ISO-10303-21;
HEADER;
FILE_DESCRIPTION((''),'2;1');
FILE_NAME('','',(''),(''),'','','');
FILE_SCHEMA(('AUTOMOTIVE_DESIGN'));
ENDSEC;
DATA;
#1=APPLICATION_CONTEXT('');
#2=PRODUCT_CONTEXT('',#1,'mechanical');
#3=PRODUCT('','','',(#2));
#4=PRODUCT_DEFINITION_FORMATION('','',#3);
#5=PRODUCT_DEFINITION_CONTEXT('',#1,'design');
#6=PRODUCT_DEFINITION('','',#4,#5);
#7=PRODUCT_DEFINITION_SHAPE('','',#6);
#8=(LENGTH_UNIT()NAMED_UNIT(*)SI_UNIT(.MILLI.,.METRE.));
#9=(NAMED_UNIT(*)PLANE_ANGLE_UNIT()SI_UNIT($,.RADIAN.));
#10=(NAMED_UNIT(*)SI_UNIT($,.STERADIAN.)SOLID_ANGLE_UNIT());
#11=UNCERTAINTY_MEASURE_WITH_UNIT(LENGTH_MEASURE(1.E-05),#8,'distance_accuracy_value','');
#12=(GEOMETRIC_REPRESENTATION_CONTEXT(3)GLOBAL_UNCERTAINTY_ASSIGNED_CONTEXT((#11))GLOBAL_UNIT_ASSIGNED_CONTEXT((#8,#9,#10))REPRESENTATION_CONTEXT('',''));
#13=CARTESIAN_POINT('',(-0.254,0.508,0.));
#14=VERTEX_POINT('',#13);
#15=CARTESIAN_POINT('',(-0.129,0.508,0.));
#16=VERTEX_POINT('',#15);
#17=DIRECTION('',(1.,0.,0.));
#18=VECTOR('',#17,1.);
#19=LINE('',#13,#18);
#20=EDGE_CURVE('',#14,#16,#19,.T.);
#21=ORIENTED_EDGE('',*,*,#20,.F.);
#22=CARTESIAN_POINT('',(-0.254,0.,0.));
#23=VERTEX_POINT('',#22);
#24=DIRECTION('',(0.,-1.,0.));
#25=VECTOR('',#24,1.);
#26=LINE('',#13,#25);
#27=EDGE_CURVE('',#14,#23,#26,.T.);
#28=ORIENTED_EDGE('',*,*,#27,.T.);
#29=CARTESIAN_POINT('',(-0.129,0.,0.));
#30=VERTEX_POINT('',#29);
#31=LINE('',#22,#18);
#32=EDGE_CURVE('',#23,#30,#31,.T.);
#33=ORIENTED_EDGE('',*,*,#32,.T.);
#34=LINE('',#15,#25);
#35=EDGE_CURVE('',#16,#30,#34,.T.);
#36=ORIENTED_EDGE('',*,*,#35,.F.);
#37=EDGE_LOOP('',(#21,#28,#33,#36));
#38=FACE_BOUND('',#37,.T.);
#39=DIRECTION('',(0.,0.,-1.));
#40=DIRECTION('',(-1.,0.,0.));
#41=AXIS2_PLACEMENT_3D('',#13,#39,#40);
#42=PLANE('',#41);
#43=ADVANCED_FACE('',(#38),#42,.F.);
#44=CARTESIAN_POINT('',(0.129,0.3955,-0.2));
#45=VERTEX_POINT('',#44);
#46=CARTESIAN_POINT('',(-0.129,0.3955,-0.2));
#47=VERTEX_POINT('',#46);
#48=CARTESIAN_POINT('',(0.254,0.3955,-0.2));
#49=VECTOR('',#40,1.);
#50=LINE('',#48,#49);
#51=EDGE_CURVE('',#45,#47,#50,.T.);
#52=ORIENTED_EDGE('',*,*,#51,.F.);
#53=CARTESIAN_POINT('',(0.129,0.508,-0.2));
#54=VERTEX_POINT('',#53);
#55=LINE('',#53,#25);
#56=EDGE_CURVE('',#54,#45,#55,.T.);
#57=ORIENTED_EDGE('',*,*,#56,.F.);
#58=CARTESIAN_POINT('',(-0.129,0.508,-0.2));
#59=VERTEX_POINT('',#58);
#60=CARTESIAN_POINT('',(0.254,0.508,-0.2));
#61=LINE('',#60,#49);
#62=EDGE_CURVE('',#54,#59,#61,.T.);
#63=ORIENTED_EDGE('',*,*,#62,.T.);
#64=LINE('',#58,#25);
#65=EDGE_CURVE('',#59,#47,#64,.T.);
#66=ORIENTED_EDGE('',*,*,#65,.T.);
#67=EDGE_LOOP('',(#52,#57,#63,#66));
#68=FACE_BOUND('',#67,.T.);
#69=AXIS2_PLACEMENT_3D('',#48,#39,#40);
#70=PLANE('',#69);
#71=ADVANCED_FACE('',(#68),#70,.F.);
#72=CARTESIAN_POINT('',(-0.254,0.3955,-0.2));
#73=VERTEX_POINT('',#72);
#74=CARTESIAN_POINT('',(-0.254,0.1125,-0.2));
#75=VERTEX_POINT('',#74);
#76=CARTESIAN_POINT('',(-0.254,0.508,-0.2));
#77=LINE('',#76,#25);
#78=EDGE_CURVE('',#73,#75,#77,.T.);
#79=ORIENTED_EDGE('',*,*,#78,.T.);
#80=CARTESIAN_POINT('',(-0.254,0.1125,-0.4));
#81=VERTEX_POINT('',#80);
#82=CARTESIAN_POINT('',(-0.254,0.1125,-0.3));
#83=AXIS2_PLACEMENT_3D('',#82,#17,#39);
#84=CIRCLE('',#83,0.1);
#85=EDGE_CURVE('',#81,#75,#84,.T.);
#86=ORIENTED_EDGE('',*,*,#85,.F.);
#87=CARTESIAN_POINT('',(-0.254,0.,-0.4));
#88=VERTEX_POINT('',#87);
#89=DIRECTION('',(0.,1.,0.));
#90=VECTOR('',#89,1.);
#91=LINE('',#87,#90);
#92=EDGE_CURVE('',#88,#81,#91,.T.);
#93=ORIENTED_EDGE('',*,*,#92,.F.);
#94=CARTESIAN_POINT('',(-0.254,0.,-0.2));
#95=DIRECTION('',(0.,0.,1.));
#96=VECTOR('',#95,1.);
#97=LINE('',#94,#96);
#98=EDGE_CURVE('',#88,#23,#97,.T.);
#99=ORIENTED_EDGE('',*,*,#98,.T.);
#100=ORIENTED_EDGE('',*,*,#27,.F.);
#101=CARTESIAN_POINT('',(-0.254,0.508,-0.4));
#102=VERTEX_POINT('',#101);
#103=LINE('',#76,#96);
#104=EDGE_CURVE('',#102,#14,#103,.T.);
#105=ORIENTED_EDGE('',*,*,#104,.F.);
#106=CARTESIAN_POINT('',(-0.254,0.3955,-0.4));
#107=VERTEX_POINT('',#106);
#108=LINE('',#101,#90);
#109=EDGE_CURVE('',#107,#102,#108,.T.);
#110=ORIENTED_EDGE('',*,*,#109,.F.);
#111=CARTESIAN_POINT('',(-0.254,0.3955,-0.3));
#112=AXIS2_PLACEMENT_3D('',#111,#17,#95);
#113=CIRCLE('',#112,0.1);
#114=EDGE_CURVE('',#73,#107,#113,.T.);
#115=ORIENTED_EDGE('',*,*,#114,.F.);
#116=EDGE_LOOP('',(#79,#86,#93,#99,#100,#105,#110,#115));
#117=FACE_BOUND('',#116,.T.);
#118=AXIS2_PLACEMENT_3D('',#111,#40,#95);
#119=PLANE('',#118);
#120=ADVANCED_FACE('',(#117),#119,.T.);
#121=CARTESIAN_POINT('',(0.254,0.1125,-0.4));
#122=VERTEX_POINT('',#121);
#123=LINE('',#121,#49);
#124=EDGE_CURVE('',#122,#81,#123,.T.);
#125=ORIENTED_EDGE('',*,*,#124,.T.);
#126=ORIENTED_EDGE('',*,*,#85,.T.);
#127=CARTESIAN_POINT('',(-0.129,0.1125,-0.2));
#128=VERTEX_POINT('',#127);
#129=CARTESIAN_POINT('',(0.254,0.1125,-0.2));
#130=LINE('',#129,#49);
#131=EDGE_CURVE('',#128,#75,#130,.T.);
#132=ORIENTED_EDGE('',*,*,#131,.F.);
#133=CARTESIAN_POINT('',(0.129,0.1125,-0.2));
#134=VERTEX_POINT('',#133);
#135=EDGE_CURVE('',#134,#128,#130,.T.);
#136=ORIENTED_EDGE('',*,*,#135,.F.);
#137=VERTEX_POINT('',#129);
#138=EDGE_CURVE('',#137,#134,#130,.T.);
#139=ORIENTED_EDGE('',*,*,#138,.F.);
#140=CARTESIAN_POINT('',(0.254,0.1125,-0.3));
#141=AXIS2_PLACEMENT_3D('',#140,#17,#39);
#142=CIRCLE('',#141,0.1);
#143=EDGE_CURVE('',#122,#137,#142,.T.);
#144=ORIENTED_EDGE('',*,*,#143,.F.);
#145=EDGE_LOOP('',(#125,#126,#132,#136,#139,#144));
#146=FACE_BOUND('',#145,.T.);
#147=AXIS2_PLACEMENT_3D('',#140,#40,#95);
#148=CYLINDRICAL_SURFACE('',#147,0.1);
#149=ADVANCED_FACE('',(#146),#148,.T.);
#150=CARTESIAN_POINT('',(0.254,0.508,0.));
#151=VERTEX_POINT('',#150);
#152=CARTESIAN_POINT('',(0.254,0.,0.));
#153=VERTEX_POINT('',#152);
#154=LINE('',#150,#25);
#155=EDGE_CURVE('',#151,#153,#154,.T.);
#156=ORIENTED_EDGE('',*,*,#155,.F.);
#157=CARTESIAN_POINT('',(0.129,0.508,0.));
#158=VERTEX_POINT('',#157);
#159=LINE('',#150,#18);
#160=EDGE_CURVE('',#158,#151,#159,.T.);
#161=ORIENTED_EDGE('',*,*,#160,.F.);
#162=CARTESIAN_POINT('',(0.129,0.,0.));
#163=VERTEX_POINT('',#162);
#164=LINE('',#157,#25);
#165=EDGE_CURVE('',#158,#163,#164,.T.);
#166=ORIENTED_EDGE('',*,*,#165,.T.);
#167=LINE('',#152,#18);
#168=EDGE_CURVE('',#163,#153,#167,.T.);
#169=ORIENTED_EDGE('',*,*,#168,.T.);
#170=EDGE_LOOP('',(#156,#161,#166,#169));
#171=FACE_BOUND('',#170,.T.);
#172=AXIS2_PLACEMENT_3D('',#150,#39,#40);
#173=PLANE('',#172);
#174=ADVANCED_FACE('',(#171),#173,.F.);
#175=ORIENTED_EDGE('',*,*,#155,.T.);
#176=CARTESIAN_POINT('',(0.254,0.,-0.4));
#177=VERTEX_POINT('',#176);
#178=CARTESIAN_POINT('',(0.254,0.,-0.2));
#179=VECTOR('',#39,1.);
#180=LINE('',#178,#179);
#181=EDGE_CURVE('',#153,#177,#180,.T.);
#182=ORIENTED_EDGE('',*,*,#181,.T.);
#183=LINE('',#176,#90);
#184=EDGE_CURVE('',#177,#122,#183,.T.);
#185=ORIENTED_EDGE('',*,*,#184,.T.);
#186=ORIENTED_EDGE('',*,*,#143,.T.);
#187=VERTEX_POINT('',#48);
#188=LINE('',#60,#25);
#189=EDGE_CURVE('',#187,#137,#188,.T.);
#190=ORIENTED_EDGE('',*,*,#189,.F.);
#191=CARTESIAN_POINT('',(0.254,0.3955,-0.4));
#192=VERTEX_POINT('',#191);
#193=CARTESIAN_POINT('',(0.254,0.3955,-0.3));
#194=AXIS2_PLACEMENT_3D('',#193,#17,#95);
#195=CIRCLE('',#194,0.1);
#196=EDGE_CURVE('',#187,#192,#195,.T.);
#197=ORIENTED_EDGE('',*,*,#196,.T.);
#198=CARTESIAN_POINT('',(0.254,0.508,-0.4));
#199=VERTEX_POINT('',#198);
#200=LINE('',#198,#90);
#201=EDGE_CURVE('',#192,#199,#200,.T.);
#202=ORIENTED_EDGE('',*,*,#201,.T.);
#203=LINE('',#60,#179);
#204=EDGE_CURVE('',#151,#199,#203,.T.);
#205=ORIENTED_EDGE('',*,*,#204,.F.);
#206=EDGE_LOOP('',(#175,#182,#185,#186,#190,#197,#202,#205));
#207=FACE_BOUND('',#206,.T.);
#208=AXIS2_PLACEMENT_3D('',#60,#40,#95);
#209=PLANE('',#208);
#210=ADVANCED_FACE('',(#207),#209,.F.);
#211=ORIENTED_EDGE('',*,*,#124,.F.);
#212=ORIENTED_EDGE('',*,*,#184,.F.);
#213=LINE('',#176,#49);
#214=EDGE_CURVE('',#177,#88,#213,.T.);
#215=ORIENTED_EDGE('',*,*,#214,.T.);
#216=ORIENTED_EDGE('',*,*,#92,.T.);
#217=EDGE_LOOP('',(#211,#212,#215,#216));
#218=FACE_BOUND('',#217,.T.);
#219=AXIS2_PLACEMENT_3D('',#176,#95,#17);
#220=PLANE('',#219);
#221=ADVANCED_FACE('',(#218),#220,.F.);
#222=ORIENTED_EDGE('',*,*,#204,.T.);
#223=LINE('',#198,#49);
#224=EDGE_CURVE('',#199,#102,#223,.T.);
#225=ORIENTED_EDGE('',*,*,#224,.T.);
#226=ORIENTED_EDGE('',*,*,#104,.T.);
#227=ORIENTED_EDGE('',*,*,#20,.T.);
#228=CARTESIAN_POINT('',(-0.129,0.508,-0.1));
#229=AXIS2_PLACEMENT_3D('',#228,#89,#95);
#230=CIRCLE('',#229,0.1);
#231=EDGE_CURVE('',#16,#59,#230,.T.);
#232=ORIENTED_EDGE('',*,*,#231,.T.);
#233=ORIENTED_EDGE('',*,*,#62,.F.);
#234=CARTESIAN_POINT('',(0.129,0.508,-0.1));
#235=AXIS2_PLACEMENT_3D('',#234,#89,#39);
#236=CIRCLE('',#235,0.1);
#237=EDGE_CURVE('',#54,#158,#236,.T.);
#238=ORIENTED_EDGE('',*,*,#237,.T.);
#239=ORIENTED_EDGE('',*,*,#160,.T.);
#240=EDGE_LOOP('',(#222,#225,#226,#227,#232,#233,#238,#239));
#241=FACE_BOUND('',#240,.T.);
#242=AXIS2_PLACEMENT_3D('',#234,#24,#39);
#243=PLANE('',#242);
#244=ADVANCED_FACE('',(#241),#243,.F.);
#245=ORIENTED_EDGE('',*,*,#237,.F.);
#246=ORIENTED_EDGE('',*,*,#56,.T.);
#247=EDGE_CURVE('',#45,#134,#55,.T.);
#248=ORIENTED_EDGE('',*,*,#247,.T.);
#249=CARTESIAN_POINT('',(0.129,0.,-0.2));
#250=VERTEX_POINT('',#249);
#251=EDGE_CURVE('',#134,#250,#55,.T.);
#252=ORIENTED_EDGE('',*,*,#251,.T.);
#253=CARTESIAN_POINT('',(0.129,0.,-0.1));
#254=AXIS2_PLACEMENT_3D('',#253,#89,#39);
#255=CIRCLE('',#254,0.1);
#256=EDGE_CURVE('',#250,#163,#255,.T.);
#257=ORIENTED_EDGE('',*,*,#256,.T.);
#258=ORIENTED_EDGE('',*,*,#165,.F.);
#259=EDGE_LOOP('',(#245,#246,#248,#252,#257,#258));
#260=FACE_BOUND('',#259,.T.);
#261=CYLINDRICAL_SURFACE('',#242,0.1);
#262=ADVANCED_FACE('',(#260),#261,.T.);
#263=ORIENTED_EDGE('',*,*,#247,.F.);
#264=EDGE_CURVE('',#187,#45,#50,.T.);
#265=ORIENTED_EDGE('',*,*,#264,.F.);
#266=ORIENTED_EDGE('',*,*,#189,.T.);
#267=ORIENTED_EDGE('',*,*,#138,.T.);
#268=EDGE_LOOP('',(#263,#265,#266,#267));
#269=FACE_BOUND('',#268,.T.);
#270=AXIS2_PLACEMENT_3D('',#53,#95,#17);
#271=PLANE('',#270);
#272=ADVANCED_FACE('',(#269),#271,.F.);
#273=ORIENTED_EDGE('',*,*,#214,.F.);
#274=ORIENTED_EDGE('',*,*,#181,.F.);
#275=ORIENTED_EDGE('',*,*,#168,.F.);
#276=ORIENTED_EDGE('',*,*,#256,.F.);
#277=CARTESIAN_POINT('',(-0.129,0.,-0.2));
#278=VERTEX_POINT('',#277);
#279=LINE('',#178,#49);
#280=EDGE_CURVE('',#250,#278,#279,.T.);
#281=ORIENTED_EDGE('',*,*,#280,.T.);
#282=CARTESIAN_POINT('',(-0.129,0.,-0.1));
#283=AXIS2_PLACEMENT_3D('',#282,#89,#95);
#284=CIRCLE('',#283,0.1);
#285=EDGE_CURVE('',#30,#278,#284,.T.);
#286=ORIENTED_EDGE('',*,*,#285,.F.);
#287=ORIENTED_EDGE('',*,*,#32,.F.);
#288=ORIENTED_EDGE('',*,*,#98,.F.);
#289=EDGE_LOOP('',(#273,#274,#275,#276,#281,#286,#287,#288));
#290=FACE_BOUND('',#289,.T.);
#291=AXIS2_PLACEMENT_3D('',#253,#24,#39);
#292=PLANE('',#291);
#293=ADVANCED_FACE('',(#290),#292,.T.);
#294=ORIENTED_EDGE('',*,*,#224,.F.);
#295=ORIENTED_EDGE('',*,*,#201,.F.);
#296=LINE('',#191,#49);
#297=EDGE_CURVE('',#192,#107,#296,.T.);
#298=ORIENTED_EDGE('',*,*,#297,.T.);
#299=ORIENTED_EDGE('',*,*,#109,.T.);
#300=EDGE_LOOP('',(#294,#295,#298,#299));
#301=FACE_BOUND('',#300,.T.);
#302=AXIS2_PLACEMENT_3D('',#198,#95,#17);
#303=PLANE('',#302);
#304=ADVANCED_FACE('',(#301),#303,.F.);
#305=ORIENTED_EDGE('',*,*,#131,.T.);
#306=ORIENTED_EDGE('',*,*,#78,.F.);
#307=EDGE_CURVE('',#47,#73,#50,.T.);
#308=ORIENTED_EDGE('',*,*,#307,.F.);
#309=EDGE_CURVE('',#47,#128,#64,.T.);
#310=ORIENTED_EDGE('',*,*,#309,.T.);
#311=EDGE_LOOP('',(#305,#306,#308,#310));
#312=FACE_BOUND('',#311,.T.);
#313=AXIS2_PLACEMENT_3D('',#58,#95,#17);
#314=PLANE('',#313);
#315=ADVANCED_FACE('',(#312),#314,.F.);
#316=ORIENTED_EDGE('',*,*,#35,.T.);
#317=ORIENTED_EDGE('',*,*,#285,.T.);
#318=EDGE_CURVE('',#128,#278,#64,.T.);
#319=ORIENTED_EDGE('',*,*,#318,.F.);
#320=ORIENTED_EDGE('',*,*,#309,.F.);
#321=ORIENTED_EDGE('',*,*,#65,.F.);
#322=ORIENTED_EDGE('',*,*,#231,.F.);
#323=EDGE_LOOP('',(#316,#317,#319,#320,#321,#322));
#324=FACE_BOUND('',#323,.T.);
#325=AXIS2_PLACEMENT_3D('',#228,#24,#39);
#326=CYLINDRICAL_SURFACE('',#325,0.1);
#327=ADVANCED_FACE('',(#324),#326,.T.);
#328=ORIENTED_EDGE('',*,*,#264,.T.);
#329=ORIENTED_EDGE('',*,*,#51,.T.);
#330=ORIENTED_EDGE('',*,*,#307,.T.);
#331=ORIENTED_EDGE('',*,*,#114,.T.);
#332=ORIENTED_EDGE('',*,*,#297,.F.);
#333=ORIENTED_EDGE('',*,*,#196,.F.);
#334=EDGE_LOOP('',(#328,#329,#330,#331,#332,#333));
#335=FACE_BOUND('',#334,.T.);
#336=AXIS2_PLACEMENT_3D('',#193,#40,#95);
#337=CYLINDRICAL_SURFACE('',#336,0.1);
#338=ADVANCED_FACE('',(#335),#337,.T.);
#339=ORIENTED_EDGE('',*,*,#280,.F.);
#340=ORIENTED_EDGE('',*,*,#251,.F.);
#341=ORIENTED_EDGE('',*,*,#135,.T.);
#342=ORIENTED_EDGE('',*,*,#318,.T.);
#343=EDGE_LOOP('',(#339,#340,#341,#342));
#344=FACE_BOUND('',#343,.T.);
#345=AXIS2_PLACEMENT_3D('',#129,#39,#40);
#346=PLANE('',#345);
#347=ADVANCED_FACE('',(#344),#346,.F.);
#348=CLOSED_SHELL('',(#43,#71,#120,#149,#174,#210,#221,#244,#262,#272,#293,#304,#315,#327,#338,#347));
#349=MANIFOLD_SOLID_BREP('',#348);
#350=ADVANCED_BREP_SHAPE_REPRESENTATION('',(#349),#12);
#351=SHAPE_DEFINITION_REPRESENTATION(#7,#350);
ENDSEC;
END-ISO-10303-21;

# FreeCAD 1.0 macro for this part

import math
import FreeCAD as App
import Part
import Sketcher
Q = App.Units.Quantity

doc = App.newDocument("Part")
body = doc.addObject("PartDesign::Body", "Body")

# Sketch on XZ plane
sketch1 = body.newObject("Sketcher::SketchObject", "Sketch")
sketch1.AttachmentSupport = (doc.getObject("XZ_Plane"), [""])
sketch1.MapMode = "FlatFace"
sketch1.addGeometry([
    Part.LineSegment(App.Vector(-0.25, 0, 0), App.Vector(-0.13, 0, 0)),
    Part.ArcOfCircle(Part.Circle(App.Vector(-0.13, -0.1, 0), App.Vector(0, 0, 1), 0.1), math.radians(-90), math.radians(90)),
    Part.LineSegment(App.Vector(-0.13, -0.2, 0), App.Vector(-0.25, -0.2, 0)),
    Part.LineSegment(App.Vector(-0.25, -0.2, 0), App.Vector(-0.25, 0, 0)),
], False)
sketch1.addConstraint([
    Sketcher.Constraint("Tangent", 0, 2, 1, 2),
    Sketcher.Constraint("Tangent", 1, 1, 2, 1),
    Sketcher.Constraint("Coincident", 2, 2, 3, 1),
    Sketcher.Constraint("Coincident", 3, 2, 0, 1),
    Sketcher.Constraint("Horizontal", 0),
    Sketcher.Constraint("Horizontal", 2),
    Sketcher.Constraint("Vertical", 3),
    Sketcher.Constraint("PointOnObject", 0, 2, -1),
    Sketcher.Constraint("DistanceX", 2, 2, -1, 1, Q("0.01 in")),
    Sketcher.Constraint("Radius", 1, 0.1),
    Sketcher.Constraint("DistanceX", 0, 1, 0, 2, 0.125),
])
pad1 = body.newObject("PartDesign::Pad", "Pad")
pad1.Profile = sketch1
pad1.Length = Q("0.02 in")
pad1.Reversed = True
body2 = doc.addObject("PartDesign::Body", "Body001")

# Sketch on XZ plane
sketch2 = body2.newObject("Sketcher::SketchObject", "Sketch001")
sketch2.AttachmentSupport = (doc.getObject("XZ_Plane001"), [""])
sketch2.MapMode = "FlatFace"
sketch2.addGeometry([
    Part.LineSegment(App.Vector(0.25, -0.2, 0), App.Vector(0.13, -0.2, 0)),
    Part.ArcOfCircle(Part.Circle(App.Vector(0.13, -0.1, 0), App.Vector(0, 0, 1), 0.1), math.radians(90), math.radians(270)),
    Part.LineSegment(App.Vector(0.13, 0, 0), App.Vector(0.25, 0, 0)),
    Part.LineSegment(App.Vector(0.25, 0, 0), App.Vector(0.25, -0.2, 0)),
], False)
sketch2.addConstraint([
    Sketcher.Constraint("Tangent", 0, 2, 1, 2),
    Sketcher.Constraint("Tangent", 1, 1, 2, 1),
    Sketcher.Constraint("Coincident", 2, 2, 3, 1),
    Sketcher.Constraint("Coincident", 3, 2, 0, 1),
    Sketcher.Constraint("Horizontal", 0),
    Sketcher.Constraint("Horizontal", 2),
    Sketcher.Constraint("Vertical", 3),
    Sketcher.Constraint("PointOnObject", 1, 1, -1),
    Sketcher.Constraint("DistanceX", -1, 1, 2, 2, Q("0.01 in")),
    Sketcher.Constraint("Radius", 1, 0.1),
    Sketcher.Constraint("DistanceX", 0, 2, 0, 1, 0.125),
])
pad2 = body2.newObject("PartDesign::Pad", "Pad001")
pad2.Profile = sketch2
pad2.Length = Q("0.02 in")
pad2.Reversed = True
body.AllowCompound = True
doc.recompute()

boolean = body.newObject("PartDesign::Boolean", "Boolean")
boolean.Type = "Fuse"
boolean.addObjects([body2])

# Sketch on YZ plane
sketch3 = body.newObject("Sketcher::SketchObject", "Sketch002")
sketch3.AttachmentSupport = (doc.getObject("YZ_Plane"), [""])
sketch3.MapMode = "FlatFace"
sketch3.addGeometry([
    Part.LineSegment(App.Vector(0.51, -0.4, 0), App.Vector(0.51, -0.2, 0)),  # 0
    Part.LineSegment(App.Vector(0.51, -0.2, 0), App.Vector(0.4, -0.2, 0)),  # 1
    Part.ArcOfCircle(Part.Circle(App.Vector(0.4, -0.3, 0), App.Vector(0, 0, 1), 0.1), math.radians(90), math.radians(270)),  # 2
    Part.LineSegment(App.Vector(0.4, -0.4, 0), App.Vector(0.51, -0.4, 0)),  # 3
    Part.LineSegment(App.Vector(0, -0.2, 0), App.Vector(0, -0.4, 0)),  # 4
    Part.LineSegment(App.Vector(0, -0.4, 0), App.Vector(0.11, -0.4, 0)),  # 5
    Part.ArcOfCircle(Part.Circle(App.Vector(0.11, -0.3, 0), App.Vector(0, 0, 1), 0.1), math.radians(-90), math.radians(90)),  # 6
    Part.LineSegment(App.Vector(0.11, -0.2, 0), App.Vector(0, -0.2, 0)),  # 7
], False)
sketch3.addConstraint([
    Sketcher.Constraint("Coincident", 0, 2, 1, 1),
    Sketcher.Constraint("Tangent", 1, 2, 2, 1),
    Sketcher.Constraint("Tangent", 2, 2, 3, 1),
    Sketcher.Constraint("Coincident", 3, 2, 0, 1),
    Sketcher.Constraint("Coincident", 4, 2, 5, 1),
    Sketcher.Constraint("Tangent", 5, 2, 6, 1),
    Sketcher.Constraint("Tangent", 6, 2, 7, 1),
    Sketcher.Constraint("Coincident", 7, 2, 4, 1),
    Sketcher.Constraint("Vertical", 0),
    Sketcher.Constraint("Horizontal", 1),
    Sketcher.Constraint("Horizontal", 3),
    Sketcher.Constraint("Vertical", 4),
    Sketcher.Constraint("Horizontal", 5),
    Sketcher.Constraint("Horizontal", 7),
    Sketcher.Constraint("Equal", 2, 6),
    Sketcher.Constraint("PointOnObject", 4, 2, -2),
    Sketcher.Constraint("Horizontal", 2, 3, 6, 3),
    Sketcher.Constraint("Equal", 3, 5),
    Sketcher.Constraint("DistanceX", -1, 1, 0, 2, Q("0.02 in")),
    Sketcher.Constraint("Radius", 2, 0.1),
    Sketcher.Constraint("DistanceX", 1, 2, 1, 1, 0.1125),
    Sketcher.Constraint("DistanceY", 2, 3, -1, 1, 0.3),
])
pad3 = body.newObject("PartDesign::Pad", "Pad002")
pad3.Profile = sketch3
pad3.Length = Q("0.02 in")
pad3.Midplane = True

doc.recompute()
